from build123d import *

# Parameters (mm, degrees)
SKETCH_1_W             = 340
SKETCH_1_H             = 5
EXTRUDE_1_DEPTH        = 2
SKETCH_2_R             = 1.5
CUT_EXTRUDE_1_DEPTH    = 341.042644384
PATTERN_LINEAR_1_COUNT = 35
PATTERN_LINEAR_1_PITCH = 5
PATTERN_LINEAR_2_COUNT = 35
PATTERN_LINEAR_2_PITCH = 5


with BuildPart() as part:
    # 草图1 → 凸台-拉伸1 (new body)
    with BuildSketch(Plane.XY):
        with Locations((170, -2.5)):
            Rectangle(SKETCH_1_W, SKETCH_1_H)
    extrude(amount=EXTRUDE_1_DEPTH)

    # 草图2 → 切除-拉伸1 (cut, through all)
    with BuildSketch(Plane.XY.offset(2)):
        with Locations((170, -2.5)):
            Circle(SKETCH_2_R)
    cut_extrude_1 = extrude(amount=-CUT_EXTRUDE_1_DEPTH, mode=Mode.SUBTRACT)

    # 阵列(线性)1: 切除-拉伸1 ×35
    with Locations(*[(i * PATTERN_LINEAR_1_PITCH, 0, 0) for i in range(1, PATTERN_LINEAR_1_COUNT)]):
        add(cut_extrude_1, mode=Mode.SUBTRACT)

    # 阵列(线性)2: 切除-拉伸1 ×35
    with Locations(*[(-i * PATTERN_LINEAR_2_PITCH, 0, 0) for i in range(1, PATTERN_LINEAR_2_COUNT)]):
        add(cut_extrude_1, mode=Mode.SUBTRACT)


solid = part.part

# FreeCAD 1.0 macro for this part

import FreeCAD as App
import Part
import Sketcher
from FreeCAD import Vector
Q = App.Units.Quantity


def add_polygon(sketch, points):
    """Adds a closed chain of lines whose ends are joined by coincident constraints."""
    first, n = sketch.GeometryCount, len(points)
    for a, b in zip(points, points[1:] + points[:1]):
        sketch.addGeometry(Part.LineSegment(App.Vector(*a, 0), App.Vector(*b, 0)), False)
    for i in range(n):
        sketch.addConstraint(Sketcher.Constraint("Coincident", first + i, 2, first + (i + 1) % n, 1))

doc = App.newDocument("Part")
body = doc.addObject("PartDesign::Body", "Body")

sketch1 = body.newObject("Sketcher::SketchObject", "Sketch")
sketch1.AttachmentSupport = (doc.getObject("XY_Plane"), [""])
sketch1.MapMode = "FlatFace"
add_polygon(sketch1, [(0, 0), (0, -5), (340, -5), (340, 0)])
sketch1.addConstraint([
    Sketcher.Constraint("Vertical", 0),
    Sketcher.Constraint("Horizontal", 1),
    Sketcher.Constraint("Vertical", 2),
    Sketcher.Constraint("Horizontal", 3),
    Sketcher.Constraint("Coincident", 3, 2, -1, 1),
    Sketcher.Constraint("DistanceX", 1, 1, 1, 2, Q("340 mm")),
    Sketcher.Constraint("DistanceY", 0, 2, 0, 1, Q("5 mm")),
])
pad1 = body.newObject("PartDesign::Pad", "Pad")
pad1.Profile = sketch1
pad1.Length = 2

sketch2 = body.newObject("Sketcher::SketchObject", "Sketch001")
sketch2.AttachmentSupport = (doc.getObject("XY_Plane"), [""])
sketch2.MapMode = "FlatFace"
sketch2.AttachmentOffset = App.Placement(Vector(0, 0, 2), App.Rotation())
sketch2.addGeometry(Part.Circle(Vector(170, -2.5, 0), Vector(0, 0, 1), 1.5), False)
sketch2.addConstraint([
    Sketcher.Constraint("Diameter", 0, Q("3 mm")),
    Sketcher.Constraint("DistanceX", -1, 1, 0, 3, Q("170 mm")),
    Sketcher.Constraint("DistanceY", 0, 3, -1, 1, Q("2.5 mm")),
])
pocket1 = body.newObject("PartDesign::Pocket", "Pocket")
pocket1.Profile = sketch2
pocket1.Type = "ThroughAll"
doc.recompute()

linearpattern = body.newObject("PartDesign::LinearPattern", "LinearPattern")
linearpattern.Originals = [pocket1]
linearpattern.Direction = (doc.getObject("X_Axis"), [""])
linearpattern.Mode = "offset"
linearpattern.Offset = 5
linearpattern.Occurrences = 35
body.Tip = linearpattern
doc.recompute()

linearpattern2 = body.newObject("PartDesign::LinearPattern", "LinearPattern001")
linearpattern2.Originals = [pocket1]
linearpattern2.Direction = (doc.getObject("X_Axis"), [""])
linearpattern2.Mode = "offset"
linearpattern2.Offset = 5
linearpattern2.Occurrences = 35
linearpattern2.Reversed = True
body.Tip = linearpattern2

doc.recompute()
